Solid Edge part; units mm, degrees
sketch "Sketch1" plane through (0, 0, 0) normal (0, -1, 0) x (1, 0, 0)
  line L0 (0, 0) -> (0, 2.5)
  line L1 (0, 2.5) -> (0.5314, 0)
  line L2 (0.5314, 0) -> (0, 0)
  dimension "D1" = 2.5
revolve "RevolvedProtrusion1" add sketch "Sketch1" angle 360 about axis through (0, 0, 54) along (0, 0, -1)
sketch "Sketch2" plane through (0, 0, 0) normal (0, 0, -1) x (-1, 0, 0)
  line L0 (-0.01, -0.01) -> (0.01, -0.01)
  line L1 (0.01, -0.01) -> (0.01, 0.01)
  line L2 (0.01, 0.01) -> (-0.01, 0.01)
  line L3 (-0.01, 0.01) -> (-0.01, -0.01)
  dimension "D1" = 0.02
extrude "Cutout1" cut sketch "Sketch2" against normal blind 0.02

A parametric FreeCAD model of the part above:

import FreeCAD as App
import Part
import Sketcher
from FreeCAD import Vector
Q = App.Units.Quantity

doc = App.newDocument("Part")
body = doc.addObject("PartDesign::Body", "Body")

# Sketch on XZ plane
sketch1 = doc.addObject("Sketcher::SketchObject", "Sketch")
body.addObject(sketch1)
sketch1.AttachmentSupport = (doc.XZ_Plane, [""])
sketch1.MapMode = "FlatFace"
sketch1.addGeometry(Part.LineSegment(Vector(0, 2.5, 0), Vector(0, 0, 0)), False)
sketch1.addGeometry(Part.LineSegment(Vector(0, 0, 0), Vector(0.5, 0, 0)), False)
sketch1.addGeometry(Part.LineSegment(Vector(0.5, 0, 0), Vector(0, 2.5, 0)), False)
sketch1.addConstraint(Sketcher.Constraint("Coincident", 0, 2, 1, 1))
sketch1.addConstraint(Sketcher.Constraint("Coincident", 1, 2, 2, 1))
sketch1.addConstraint(Sketcher.Constraint("Coincident", 2, 2, 0, 1))
sketch1.addConstraint(Sketcher.Constraint("Vertical", 0))
sketch1.addConstraint(Sketcher.Constraint("Horizontal", 1))
sketch1.addConstraint(Sketcher.Constraint("Coincident", 0, 2, -1, 1))
sketch1.addConstraint(Sketcher.Constraint("Angle", 2, Q("102.0002 deg")))
sketch1.addConstraint(Sketcher.Constraint("DistanceY", 0, 2, 0, 1, 2.5))
revolution = doc.addObject("PartDesign::Revolution", "Revolution")
body.addObject(revolution)
revolution.Profile = sketch1
revolution.ReferenceAxis = (sketch1, ["V_Axis"])
revolution.Angle = 360

# Sketch on XY plane
sketch2 = doc.addObject("Sketcher::SketchObject", "Sketch001")
body.addObject(sketch2)
sketch2.AttachmentSupport = (doc.XY_Plane, [""])
sketch2.MapMode = "FlatFace"
sketch2.addGeometry(Part.LineSegment(Vector(0.01, 0.01, 0), Vector(0.01, -0.01, 0)), False)
sketch2.addGeometry(Part.LineSegment(Vector(0.01, -0.01, 0), Vector(-0.01, -0.01, 0)), False)
sketch2.addGeometry(Part.LineSegment(Vector(-0.01, -0.01, 0), Vector(-0.01, 0.01, 0)), False)
sketch2.addGeometry(Part.LineSegment(Vector(-0.01, 0.01, 0), Vector(0.01, 0.01, 0)), False)
sketch2.addConstraint(Sketcher.Constraint("Coincident", 0, 2, 1, 1))
sketch2.addConstraint(Sketcher.Constraint("Coincident", 1, 2, 2, 1))
sketch2.addConstraint(Sketcher.Constraint("Coincident", 2, 2, 3, 1))
sketch2.addConstraint(Sketcher.Constraint("Coincident", 3, 2, 0, 1))
sketch2.addConstraint(Sketcher.Constraint("Vertical", 0))
sketch2.addConstraint(Sketcher.Constraint("Horizontal", 1))
sketch2.addConstraint(Sketcher.Constraint("Vertical", 2))
sketch2.addConstraint(Sketcher.Constraint("Horizontal", 3))
sketch2.addConstraint(Sketcher.Constraint("Symmetric", 0, 2, 2, 2, -1, 1))
sketch2.addConstraint(Sketcher.Constraint("Equal", 3, 0))
sketch2.addConstraint(Sketcher.Constraint("DistanceX", -1, 1, 0, 2, 0.01))
pocket1 = doc.addObject("PartDesign::Pocket", "Pocket")
body.addObject(pocket1)
pocket1.Profile = sketch2
pocket1.Length = 0.02
pocket1.Reversed = True

doc.recompute()
